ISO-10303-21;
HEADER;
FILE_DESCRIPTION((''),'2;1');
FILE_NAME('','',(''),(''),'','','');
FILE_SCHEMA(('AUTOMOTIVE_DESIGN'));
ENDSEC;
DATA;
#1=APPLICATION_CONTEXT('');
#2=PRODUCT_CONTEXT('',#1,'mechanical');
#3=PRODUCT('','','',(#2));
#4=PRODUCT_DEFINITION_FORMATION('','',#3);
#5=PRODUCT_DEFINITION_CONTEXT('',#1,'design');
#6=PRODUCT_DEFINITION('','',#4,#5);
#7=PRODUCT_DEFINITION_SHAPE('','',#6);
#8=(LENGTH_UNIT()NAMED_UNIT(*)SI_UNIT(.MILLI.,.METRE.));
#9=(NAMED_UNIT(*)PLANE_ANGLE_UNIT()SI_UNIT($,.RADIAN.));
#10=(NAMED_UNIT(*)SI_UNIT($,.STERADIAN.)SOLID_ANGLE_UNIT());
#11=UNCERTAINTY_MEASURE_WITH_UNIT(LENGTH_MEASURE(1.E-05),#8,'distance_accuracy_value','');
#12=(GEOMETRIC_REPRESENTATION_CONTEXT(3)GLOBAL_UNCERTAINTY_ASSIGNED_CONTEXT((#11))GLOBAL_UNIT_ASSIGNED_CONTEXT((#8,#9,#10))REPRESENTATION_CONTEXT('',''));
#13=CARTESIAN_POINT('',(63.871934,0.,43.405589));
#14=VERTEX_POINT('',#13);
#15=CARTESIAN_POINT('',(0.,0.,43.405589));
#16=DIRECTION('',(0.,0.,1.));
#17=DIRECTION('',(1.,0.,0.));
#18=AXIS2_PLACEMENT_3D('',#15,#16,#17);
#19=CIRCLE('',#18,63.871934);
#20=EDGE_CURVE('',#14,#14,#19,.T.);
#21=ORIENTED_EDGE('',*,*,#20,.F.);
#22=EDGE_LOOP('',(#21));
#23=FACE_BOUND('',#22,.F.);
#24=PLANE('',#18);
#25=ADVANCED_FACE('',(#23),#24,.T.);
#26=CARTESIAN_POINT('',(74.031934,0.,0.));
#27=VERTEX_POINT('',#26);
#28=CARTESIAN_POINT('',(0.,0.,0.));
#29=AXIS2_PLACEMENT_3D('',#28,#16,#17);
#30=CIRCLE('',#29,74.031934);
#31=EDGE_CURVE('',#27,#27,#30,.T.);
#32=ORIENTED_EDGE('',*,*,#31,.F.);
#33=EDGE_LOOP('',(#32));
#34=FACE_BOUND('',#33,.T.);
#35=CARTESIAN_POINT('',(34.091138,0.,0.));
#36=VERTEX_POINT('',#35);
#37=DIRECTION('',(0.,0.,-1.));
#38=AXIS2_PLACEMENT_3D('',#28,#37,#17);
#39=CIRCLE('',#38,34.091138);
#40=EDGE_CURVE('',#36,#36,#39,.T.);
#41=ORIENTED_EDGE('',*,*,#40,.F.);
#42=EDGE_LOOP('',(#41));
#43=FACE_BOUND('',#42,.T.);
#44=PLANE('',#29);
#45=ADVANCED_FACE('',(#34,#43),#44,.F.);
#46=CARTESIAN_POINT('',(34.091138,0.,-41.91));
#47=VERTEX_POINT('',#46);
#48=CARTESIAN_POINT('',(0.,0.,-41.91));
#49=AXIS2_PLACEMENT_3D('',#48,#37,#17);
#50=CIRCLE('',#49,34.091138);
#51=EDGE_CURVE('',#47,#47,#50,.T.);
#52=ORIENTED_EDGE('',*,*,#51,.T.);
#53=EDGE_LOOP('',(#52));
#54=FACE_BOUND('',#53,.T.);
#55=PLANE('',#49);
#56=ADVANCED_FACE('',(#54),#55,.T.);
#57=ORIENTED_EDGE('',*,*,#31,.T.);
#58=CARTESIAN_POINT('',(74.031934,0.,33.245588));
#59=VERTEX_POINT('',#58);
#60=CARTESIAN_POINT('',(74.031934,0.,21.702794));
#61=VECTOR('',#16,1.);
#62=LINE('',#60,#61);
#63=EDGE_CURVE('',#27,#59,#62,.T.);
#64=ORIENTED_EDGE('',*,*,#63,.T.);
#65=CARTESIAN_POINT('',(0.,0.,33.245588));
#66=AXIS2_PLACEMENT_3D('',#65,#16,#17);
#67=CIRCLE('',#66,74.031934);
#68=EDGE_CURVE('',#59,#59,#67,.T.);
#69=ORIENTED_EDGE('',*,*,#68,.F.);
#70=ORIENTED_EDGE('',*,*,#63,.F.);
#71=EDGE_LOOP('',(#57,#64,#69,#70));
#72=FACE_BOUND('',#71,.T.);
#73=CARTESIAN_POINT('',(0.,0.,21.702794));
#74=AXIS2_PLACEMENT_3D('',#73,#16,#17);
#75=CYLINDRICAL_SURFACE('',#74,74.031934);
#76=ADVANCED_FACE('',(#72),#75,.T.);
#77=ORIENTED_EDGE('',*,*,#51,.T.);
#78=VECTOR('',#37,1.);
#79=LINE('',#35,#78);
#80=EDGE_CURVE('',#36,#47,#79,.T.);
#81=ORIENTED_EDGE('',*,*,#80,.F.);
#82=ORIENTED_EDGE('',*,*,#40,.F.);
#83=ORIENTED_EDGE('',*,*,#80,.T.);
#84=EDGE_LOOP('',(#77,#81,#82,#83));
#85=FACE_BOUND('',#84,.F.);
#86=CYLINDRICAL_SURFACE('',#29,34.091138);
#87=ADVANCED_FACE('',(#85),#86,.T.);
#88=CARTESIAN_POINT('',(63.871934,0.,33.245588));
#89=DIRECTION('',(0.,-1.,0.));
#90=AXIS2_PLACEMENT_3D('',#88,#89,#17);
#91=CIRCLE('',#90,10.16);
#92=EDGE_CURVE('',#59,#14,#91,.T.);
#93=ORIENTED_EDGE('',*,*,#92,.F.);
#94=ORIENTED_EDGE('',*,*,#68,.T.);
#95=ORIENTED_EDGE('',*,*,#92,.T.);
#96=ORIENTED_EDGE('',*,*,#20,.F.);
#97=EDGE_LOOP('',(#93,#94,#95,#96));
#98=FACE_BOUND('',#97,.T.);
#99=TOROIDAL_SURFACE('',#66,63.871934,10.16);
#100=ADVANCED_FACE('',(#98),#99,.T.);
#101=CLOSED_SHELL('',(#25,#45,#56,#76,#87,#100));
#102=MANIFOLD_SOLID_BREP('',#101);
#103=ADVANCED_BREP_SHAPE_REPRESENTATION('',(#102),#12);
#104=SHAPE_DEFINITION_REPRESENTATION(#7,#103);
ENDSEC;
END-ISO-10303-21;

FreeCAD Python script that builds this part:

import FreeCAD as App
import Part
import Sketcher
Q = App.Units.Quantity


def edges_at(feature, points):
    """Names of the edges that pass closest to the given points."""
    edges = feature.Shape.Edges
    near = lambda p: min(range(len(edges)), key=lambda i: edges[i].distToShape(Part.Vertex(*p))[0])
    return sorted({f"Edge{near(p) + 1}" for p in points})

doc = App.newDocument("Part")
body = doc.addObject("PartDesign::Body", "Body")

# Sketch on XZ plane
sketch1 = doc.addObject("Sketcher::SketchObject", "Sketch")
body.addObject(sketch1)
sketch1.AttachmentSupport = (doc.XZ_Plane, [""])
sketch1.MapMode = "FlatFace"
sketch1.addGeometry([
    Part.LineSegment(App.Vector(0, 43.405589, 0), App.Vector(0, 0, 0)),
    Part.LineSegment(App.Vector(0, 0, 0), App.Vector(74.031934, 0, 0)),
    Part.LineSegment(App.Vector(74.031934, 0, 0), App.Vector(74.031934, 43.405589, 0)),
    Part.LineSegment(App.Vector(74.031934, 43.405589, 0), App.Vector(0, 43.405589, 0)),
], False)
sketch1.addConstraint([
    Sketcher.Constraint("Coincident", 0, 2, 1, 1),
    Sketcher.Constraint("Coincident", 1, 2, 2, 1),
    Sketcher.Constraint("Coincident", 2, 2, 3, 1),
    Sketcher.Constraint("Coincident", 3, 2, 0, 1),
    Sketcher.Constraint("Vertical", 0),
    Sketcher.Constraint("Horizontal", 1),
    Sketcher.Constraint("Vertical", 2),
    Sketcher.Constraint("Horizontal", 3),
    Sketcher.Constraint("Coincident", 0, 2, -1, 1),
    Sketcher.Constraint("DistanceY", 0, 2, 0, 1, Q("43.405589 mm")),
    Sketcher.Constraint("DistanceX", 1, 1, 1, 2, Q("74.031934 mm")),
])
revolution = doc.addObject("PartDesign::Revolution", "Revolution")
body.addObject(revolution)
revolution.Profile = sketch1
revolution.ReferenceAxis = (sketch1, ["V_Axis"])
revolution.Angle = 360

# Sketch on XY plane
sketch2 = doc.addObject("Sketcher::SketchObject", "Sketch001")
body.addObject(sketch2)
sketch2.AttachmentSupport = (doc.XY_Plane, [""])
sketch2.MapMode = "FlatFace"
sketch2.addGeometry(Part.Circle(App.Vector(0, 0, 0), App.Vector(0, 0, 1), 34.091138), False)
sketch2.addConstraint([
    Sketcher.Constraint("Coincident", 0, 3, -1, 1),
    Sketcher.Constraint("Diameter", 0, Q("68.182276 mm")),
])
pad1 = doc.addObject("PartDesign::Pad", "Pad")
body.addObject(pad1)
pad1.Profile = sketch2
pad1.Length = Q("1.65 in")
pad1.Reversed = True
doc.recompute()

fillet = doc.addObject("PartDesign::Fillet", "Fillet")
body.addObject(fillet)
fillet.Base = (pad1, edges_at(pad1, [(-74.032, 0, 43.406)]))
fillet.Radius = Q("0.4 in")

doc.recompute()
